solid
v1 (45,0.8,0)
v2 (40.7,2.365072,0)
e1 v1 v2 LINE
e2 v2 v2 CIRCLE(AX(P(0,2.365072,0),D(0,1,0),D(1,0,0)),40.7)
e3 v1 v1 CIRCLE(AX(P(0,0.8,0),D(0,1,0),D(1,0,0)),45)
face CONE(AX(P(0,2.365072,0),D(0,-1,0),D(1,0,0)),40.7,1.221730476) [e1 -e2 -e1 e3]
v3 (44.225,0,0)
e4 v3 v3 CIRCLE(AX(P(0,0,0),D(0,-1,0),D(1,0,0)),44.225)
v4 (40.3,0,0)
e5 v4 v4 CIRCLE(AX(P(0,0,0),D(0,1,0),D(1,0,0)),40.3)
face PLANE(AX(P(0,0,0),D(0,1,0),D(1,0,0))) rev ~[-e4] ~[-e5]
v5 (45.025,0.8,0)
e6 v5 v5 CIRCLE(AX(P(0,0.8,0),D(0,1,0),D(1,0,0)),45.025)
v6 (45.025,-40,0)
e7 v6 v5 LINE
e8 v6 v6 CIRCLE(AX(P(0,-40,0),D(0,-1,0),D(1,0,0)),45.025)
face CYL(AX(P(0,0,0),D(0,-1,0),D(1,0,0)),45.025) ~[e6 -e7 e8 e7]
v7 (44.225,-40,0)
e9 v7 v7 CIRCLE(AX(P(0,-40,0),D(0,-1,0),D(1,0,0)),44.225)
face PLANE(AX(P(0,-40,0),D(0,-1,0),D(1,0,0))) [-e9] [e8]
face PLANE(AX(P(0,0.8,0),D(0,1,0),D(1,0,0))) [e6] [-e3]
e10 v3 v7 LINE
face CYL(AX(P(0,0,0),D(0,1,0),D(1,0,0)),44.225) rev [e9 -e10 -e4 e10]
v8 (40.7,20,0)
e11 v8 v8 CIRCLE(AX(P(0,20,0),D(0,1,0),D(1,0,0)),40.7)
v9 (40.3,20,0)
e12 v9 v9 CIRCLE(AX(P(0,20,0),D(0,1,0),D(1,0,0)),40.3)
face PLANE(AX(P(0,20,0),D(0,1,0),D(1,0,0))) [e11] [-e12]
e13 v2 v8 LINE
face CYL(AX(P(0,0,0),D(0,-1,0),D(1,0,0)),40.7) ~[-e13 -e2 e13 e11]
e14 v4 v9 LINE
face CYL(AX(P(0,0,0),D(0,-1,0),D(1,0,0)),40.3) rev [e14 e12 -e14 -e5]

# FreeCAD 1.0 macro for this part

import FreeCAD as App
import Part
import Sketcher

V = App.Vector
Q = App.Units.Quantity


def edges_at(feature, points):
    """Names of the edges that pass closest to the given points."""
    edges = feature.Shape.Edges
    near = lambda p: min(range(len(edges)), key=lambda i: edges[i].distToShape(Part.Vertex(*p))[0])
    return sorted({f"Edge{near(p) + 1}" for p in points})

doc = App.newDocument("Part")
body = doc.addObject("PartDesign::Body", "Body")

sketch1 = body.newObject("Sketcher::SketchObject", "Sketch")
sketch1.AttachmentSupport = (doc.getObject("XZ_Plane"), [""])
sketch1.MapMode = "FlatFace"
sketch1.addGeometry([
    Part.Circle(V(0, 0, 0), V(0, 0, 1), 41),
    Part.Circle(V(0, 0, 0), V(0, 0, 1), 40),
], False)
sketch1.addConstraint([
    Sketcher.Constraint("Coincident", 0, 3, -1, 1),
    Sketcher.Constraint("Coincident", 1, 3, -1, 1),
    Sketcher.Constraint("Diameter", 0, Q("81.4 mm")),
    Sketcher.Constraint("Diameter", 1, Q("80.6 mm")),
])
pad1 = body.newObject("PartDesign::Pad", "Pad")
pad1.Profile = sketch1
pad1.Length = 20
pad1.Reversed = True
body2 = doc.addObject("PartDesign::Body", "Body001")

sketch2 = body2.newObject("Sketcher::SketchObject", "Sketch001")
sketch2.AttachmentSupport = (doc.getObject("XZ_Plane001"), [""])
sketch2.MapMode = "FlatFace"
sketch2.addGeometry([
    Part.Circle(V(0, 0, 0), V(0, 0, 1), 45),
    Part.Circle(V(0, 0, 0), V(0, 0, 1), 44),
], False)
sketch2.addConstraint([
    Sketcher.Constraint("Coincident", 0, 3, -1, 1),
    Sketcher.Constraint("Coincident", 1, 3, -1, 1),
    Sketcher.Constraint("Diameter", 0, Q("90.05 mm")),
    Sketcher.Constraint("Diameter", 1, Q("88.45 mm")),
])
pad2 = body2.newObject("PartDesign::Pad", "Pad001")
pad2.Profile = sketch2
pad2.Length = 40
body.AllowCompound = True
doc.recompute()

boolean = body.newObject("PartDesign::Boolean", "Boolean")
boolean.Type = "Fuse"
boolean.addObjects([body2])

sketch3 = body.newObject("Sketcher::SketchObject", "Sketch002")
sketch3.AttachmentSupport = (doc.getObject("XZ_Plane"), [""])
sketch3.MapMode = "FlatFace"
sketch3.addGeometry([
    Part.Circle(V(0, 0, 0), V(0, 0, 1), 45),
    Part.Circle(V(0, 0, 0), V(0, 0, 1), 41),
], False)
sketch3.addConstraint([
    Sketcher.Constraint("Coincident", 0, 3, -1, 1),
    Sketcher.Constraint("Coincident", 1, 3, -1, 1),
    Sketcher.Constraint("Diameter", 1, Q("81.4 mm")),
    Sketcher.Constraint("Diameter", 0, Q("90.05 mm")),
])
pad3 = body.newObject("PartDesign::Pad", "Pad002")
pad3.Profile = sketch3
pad3.Length = 0.8
pad3.Reversed = True
doc.recompute()

chamfer = body.newObject("PartDesign::Chamfer", "Chamfer")
chamfer.Base = (pad3, edges_at(pad3, [(-40.7, 0.8, 0)]))
chamfer.ChamferType = "Two distances"
chamfer.Size = 4.3
chamfer.Size2 = 1.565072
chamfer.FlipDirection = True

doc.recompute()
